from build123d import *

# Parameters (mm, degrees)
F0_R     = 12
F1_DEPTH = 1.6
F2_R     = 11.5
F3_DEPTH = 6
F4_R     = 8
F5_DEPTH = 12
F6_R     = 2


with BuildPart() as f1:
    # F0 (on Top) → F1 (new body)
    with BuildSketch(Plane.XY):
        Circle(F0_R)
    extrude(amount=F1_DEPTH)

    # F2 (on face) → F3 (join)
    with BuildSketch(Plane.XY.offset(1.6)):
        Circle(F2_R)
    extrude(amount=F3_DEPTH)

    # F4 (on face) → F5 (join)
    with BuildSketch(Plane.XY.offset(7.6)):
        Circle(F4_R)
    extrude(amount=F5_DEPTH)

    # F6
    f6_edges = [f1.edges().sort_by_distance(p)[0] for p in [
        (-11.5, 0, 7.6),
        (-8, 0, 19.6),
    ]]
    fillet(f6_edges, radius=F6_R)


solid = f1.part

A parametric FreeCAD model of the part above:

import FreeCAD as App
import Part
import Sketcher
Q = App.Units.Quantity


def edges_at(feature, points):
    """Names of the edges that pass closest to the given points."""
    edges = feature.Shape.Edges
    near = lambda p: min(range(len(edges)), key=lambda i: edges[i].distToShape(Part.Vertex(*p))[0])
    return sorted({f"Edge{near(p) + 1}" for p in points})

doc = App.newDocument("Part")
body = doc.addObject("PartDesign::Body", "Body")

# Sketch on XY plane
sketch1 = body.newObject("Sketcher::SketchObject", "Sketch")
sketch1.AttachmentSupport = (doc.getObject("XY_Plane"), [""])
sketch1.MapMode = "FlatFace"
sketch1.addGeometry(Part.Circle(App.Vector(0, 0, 0), App.Vector(0, 0, 1), 12), False)
sketch1.addConstraint([
    Sketcher.Constraint("Coincident", 0, 3, -1, 1),
    Sketcher.Constraint("Diameter", 0, Q("24 mm")),
])
pad1 = body.newObject("PartDesign::Pad", "Pad")
pad1.Profile = sketch1
pad1.Length = 1.6

# Sketch on XY plane
sketch2 = body.newObject("Sketcher::SketchObject", "Sketch001")
sketch2.AttachmentSupport = (doc.getObject("XY_Plane"), [""])
sketch2.MapMode = "FlatFace"
sketch2.AttachmentOffset = App.Placement(App.Vector(0, 0, 1.6), App.Rotation())
sketch2.addGeometry(Part.Circle(App.Vector(0, 0, 0), App.Vector(0, 0, 1), 11.5), False)
sketch2.addConstraint([
    Sketcher.Constraint("Coincident", 0, 3, -1, 1),
    Sketcher.Constraint("Diameter", 0, Q("23 mm")),
])
pad2 = body.newObject("PartDesign::Pad", "Pad001")
pad2.Profile = sketch2
pad2.Length = 6

# Sketch on XY plane
sketch3 = body.newObject("Sketcher::SketchObject", "Sketch002")
sketch3.AttachmentSupport = (doc.getObject("XY_Plane"), [""])
sketch3.MapMode = "FlatFace"
sketch3.AttachmentOffset = App.Placement(App.Vector(0, 0, 7.6), App.Rotation())
sketch3.addGeometry(Part.Circle(App.Vector(0, 0, 0), App.Vector(0, 0, 1), 8), False)
sketch3.addConstraint([
    Sketcher.Constraint("Coincident", 0, 3, -1, 1),
    Sketcher.Constraint("Diameter", 0, Q("16 mm")),
])
pad3 = body.newObject("PartDesign::Pad", "Pad002")
pad3.Profile = sketch3
pad3.Length = 12
doc.recompute()

fillet = body.newObject("PartDesign::Fillet", "Fillet")
fillet.Base = (pad3, edges_at(pad3, [(-11.5, 0, 7.6), (-8, 0, 19.6)]))
fillet.Radius = 2

doc.recompute()
